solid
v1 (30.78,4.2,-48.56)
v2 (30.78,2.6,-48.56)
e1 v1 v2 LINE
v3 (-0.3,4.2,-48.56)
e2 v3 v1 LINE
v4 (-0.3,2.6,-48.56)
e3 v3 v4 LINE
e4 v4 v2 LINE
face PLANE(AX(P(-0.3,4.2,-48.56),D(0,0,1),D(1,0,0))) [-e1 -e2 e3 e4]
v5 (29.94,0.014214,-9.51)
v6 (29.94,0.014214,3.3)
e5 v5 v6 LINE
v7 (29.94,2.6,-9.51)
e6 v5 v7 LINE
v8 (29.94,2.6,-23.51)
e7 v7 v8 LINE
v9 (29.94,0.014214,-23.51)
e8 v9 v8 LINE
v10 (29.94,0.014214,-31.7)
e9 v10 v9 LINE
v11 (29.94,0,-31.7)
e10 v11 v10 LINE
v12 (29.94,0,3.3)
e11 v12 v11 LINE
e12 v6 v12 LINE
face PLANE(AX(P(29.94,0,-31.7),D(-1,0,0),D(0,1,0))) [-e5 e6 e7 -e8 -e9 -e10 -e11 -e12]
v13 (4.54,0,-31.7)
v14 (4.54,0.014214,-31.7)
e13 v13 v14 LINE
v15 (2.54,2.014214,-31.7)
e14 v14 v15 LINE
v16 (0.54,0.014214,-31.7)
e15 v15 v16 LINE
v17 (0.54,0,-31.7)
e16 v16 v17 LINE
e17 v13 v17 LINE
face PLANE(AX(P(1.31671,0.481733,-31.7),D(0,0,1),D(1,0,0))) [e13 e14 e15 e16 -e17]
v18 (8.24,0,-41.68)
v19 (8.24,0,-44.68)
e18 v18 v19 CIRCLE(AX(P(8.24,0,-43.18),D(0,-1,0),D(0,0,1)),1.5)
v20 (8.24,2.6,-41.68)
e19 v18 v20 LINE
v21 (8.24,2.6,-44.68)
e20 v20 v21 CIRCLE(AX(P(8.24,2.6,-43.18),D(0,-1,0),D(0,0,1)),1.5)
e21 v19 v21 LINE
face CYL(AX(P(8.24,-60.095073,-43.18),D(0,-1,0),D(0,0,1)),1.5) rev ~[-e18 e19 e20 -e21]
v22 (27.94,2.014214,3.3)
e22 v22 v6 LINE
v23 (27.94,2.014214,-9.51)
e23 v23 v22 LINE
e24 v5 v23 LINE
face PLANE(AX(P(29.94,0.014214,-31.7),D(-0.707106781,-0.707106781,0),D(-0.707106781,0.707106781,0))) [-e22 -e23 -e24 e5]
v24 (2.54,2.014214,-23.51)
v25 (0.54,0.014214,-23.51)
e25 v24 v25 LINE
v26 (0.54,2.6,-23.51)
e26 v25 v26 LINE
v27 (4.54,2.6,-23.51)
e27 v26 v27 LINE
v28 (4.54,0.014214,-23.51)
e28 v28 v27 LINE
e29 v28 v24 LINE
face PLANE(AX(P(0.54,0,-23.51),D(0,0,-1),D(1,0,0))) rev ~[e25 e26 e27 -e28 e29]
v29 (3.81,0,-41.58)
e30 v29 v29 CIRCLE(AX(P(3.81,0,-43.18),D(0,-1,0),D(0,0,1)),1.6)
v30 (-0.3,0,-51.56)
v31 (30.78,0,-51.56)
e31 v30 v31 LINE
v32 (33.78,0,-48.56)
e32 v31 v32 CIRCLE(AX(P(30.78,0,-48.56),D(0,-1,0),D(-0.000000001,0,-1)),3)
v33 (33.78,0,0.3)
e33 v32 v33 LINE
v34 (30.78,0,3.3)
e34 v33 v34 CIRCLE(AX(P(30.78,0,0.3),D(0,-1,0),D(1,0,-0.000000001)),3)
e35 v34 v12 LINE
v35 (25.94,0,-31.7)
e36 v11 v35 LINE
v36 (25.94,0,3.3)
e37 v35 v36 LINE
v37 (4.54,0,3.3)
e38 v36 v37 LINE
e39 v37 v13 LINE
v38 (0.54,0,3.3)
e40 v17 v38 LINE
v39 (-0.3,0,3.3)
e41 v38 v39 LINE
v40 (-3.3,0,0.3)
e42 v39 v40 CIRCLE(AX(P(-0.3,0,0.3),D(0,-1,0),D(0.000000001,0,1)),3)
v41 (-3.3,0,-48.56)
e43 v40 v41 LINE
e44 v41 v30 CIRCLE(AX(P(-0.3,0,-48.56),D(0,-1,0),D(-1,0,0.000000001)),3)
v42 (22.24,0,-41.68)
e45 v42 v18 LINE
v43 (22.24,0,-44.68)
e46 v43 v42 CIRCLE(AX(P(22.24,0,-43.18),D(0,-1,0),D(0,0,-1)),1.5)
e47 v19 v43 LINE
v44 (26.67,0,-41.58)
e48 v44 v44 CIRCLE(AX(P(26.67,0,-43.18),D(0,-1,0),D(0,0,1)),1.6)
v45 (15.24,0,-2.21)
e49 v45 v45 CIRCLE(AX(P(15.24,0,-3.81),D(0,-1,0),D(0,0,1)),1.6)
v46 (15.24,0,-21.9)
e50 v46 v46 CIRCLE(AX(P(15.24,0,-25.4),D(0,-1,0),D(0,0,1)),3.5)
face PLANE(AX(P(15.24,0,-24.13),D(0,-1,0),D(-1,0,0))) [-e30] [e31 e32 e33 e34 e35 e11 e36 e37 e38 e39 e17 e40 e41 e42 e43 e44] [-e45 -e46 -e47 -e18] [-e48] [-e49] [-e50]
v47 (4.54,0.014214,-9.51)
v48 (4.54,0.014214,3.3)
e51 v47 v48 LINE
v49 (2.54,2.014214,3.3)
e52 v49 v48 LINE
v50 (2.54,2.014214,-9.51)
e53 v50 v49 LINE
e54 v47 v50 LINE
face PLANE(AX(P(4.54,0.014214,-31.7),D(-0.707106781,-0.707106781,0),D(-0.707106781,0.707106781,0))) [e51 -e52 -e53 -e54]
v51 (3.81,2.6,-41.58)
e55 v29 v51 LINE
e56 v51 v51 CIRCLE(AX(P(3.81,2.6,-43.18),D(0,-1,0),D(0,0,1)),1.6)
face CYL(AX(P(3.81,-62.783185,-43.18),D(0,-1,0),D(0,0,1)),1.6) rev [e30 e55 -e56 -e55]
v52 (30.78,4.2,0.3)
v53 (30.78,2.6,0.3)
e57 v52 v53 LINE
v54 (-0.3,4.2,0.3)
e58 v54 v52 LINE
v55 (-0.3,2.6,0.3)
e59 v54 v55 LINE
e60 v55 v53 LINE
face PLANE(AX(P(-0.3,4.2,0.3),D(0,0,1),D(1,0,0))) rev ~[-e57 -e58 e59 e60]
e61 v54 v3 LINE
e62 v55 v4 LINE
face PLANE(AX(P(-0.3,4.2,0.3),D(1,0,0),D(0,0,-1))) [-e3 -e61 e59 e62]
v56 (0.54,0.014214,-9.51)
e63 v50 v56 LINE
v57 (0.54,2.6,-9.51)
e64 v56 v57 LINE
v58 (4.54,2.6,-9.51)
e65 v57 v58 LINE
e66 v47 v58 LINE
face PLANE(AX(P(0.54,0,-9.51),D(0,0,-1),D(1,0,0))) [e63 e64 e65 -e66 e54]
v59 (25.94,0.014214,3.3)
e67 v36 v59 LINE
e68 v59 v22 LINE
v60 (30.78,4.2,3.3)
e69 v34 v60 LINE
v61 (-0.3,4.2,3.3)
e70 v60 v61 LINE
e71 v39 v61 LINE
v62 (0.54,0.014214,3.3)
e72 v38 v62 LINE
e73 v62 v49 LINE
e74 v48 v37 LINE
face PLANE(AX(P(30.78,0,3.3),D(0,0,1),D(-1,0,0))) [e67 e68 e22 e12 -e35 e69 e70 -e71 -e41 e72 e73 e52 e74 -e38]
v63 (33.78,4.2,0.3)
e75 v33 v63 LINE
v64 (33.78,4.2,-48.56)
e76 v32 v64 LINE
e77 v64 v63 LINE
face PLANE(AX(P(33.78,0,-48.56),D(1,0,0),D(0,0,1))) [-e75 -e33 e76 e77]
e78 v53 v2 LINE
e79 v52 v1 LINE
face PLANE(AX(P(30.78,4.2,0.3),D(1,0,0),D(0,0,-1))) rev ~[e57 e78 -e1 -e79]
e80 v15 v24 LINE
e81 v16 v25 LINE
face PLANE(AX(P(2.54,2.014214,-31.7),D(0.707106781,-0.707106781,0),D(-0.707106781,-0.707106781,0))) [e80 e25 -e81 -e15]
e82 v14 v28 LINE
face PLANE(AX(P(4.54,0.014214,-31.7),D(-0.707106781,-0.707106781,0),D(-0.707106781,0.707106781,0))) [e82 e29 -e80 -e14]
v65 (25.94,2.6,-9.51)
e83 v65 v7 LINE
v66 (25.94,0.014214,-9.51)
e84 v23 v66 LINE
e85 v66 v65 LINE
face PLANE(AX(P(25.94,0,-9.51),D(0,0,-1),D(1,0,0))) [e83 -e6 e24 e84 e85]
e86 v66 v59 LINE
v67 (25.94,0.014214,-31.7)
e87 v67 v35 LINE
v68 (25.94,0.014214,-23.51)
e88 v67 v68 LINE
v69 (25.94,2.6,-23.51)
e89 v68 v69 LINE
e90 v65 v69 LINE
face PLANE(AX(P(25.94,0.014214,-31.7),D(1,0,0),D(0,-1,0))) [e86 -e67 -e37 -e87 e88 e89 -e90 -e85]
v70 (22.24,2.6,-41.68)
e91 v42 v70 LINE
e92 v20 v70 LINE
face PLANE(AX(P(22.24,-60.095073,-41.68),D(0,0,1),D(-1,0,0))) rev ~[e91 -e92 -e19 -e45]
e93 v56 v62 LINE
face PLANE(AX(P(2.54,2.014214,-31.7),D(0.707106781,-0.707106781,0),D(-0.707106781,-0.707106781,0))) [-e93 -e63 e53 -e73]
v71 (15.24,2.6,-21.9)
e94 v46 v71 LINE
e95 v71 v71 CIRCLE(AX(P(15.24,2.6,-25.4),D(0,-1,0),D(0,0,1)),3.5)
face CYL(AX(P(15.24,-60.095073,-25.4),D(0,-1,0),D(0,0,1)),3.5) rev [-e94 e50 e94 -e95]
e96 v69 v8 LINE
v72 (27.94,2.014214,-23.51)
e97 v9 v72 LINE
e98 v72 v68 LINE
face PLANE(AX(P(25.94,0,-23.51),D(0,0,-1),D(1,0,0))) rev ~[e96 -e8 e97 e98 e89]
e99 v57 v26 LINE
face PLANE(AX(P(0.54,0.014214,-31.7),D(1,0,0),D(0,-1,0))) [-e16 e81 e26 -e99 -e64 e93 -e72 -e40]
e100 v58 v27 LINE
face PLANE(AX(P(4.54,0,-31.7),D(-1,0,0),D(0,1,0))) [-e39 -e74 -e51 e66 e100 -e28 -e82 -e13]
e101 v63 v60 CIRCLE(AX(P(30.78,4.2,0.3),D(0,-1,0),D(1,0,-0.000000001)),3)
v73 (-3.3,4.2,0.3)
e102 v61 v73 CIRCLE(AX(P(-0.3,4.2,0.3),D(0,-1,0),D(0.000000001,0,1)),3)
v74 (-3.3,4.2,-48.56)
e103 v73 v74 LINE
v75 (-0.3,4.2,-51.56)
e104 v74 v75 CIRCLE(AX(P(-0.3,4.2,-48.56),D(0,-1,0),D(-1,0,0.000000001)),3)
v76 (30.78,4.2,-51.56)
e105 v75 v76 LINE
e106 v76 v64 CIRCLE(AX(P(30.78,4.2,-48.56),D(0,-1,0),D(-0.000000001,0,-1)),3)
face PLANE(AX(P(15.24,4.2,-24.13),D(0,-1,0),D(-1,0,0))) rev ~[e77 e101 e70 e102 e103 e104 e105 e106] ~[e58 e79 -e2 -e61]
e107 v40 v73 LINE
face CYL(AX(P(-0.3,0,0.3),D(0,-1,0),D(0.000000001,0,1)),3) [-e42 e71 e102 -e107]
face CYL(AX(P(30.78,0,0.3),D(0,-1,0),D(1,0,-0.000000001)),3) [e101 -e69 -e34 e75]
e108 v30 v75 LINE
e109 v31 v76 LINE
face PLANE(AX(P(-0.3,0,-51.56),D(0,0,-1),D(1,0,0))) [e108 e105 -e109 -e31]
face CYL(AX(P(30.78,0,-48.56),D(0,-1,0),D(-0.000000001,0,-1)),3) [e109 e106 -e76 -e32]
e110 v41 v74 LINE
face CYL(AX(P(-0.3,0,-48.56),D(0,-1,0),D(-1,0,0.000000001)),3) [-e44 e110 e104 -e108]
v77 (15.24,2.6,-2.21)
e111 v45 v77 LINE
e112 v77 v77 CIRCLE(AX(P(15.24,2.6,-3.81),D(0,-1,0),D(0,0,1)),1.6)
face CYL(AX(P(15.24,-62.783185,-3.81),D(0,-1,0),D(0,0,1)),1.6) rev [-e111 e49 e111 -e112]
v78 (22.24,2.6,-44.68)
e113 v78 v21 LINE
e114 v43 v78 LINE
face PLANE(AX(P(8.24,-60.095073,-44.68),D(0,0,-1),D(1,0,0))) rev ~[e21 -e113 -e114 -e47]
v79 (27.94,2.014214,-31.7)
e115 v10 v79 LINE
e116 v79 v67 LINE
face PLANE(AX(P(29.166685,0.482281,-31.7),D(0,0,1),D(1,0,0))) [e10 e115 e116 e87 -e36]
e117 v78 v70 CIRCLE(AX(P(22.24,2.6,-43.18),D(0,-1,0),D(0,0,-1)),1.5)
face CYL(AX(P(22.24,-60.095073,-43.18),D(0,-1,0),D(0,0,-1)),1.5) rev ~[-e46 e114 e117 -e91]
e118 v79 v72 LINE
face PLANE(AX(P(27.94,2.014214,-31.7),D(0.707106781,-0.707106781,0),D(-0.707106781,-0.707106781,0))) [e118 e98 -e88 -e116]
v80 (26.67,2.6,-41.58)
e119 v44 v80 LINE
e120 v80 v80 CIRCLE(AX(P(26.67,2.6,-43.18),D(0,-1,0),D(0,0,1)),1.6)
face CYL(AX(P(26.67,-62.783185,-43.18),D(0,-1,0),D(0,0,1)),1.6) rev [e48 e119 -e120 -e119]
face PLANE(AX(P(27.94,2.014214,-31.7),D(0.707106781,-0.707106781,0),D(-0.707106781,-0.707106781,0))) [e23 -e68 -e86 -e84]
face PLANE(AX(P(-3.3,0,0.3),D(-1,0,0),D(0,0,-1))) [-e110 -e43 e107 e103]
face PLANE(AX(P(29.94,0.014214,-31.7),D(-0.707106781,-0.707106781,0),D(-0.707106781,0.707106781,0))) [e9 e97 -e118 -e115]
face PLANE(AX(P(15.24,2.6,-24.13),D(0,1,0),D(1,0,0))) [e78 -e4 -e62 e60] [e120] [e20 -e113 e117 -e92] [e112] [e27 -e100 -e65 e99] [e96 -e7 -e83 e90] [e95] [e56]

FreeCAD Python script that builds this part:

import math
import FreeCAD as App
import Part
import Sketcher
Q = App.Units.Quantity


def add_polygon(sketch, points):
    """Adds a closed chain of lines whose ends are joined by coincident constraints."""
    first, n = sketch.GeometryCount, len(points)
    for a, b in zip(points, points[1:] + points[:1]):
        sketch.addGeometry(Part.LineSegment(App.Vector(*a, 0), App.Vector(*b, 0)), False)
    for i in range(n):
        sketch.addConstraint(Sketcher.Constraint("Coincident", first + i, 2, first + (i + 1) % n, 1))

doc = App.newDocument("Part")
body = doc.addObject("PartDesign::Body", "Body")

# Sketch on XZ plane
sketch1 = doc.addObject("Sketcher::SketchObject", "Sketch")
body.addObject(sketch1)
sketch1.AttachmentSupport = (doc.XZ_Plane, [""])
sketch1.MapMode = "FlatFace"
sketch1.addGeometry([
    Part.LineSegment(App.Vector(-3.3, -48.6, 0), App.Vector(-3.3, 0.3, 0)),  # 0
    Part.ArcOfCircle(Part.Circle(App.Vector(-0.3, 0.3, 0), App.Vector(0, 0, 1), 3), math.radians(90), math.radians(180)),  # 1
    Part.LineSegment(App.Vector(-0.3, 3.3, 0), App.Vector(30.8, 3.3, 0)),  # 2
    Part.ArcOfCircle(Part.Circle(App.Vector(30.8, 0.3, 0), App.Vector(0, 0, 1), 3), math.radians(0), math.radians(90)),  # 3
    Part.LineSegment(App.Vector(33.8, 0.3, 0), App.Vector(33.8, -48.6, 0)),  # 4
    Part.ArcOfCircle(Part.Circle(App.Vector(30.8, -48.6, 0), App.Vector(0, 0, 1), 3), math.radians(-90), math.radians(0)),  # 5
    Part.LineSegment(App.Vector(30.8, -51.6, 0), App.Vector(-0.3, -51.6, 0)),  # 6
    Part.ArcOfCircle(Part.Circle(App.Vector(-0.3, -48.6, 0), App.Vector(0, 0, 1), 3), math.radians(180), math.radians(270)),  # 7
], False)
sketch1.addConstraint([
    Sketcher.Constraint("Tangent", 0, 2, 1, 2),
    Sketcher.Constraint("Tangent", 1, 1, 2, 1),
    Sketcher.Constraint("Tangent", 2, 2, 3, 2),
    Sketcher.Constraint("Tangent", 3, 1, 4, 1),
    Sketcher.Constraint("Tangent", 4, 2, 5, 2),
    Sketcher.Constraint("Tangent", 5, 1, 6, 1),
    Sketcher.Constraint("Tangent", 6, 2, 7, 2),
    Sketcher.Constraint("Tangent", 7, 1, 0, 1),
    Sketcher.Constraint("Vertical", 0),
    Sketcher.Constraint("Horizontal", 2),
    Sketcher.Constraint("Vertical", 4),
    Sketcher.Constraint("Horizontal", 6),
    Sketcher.Constraint("Equal", 1, 3),
    Sketcher.Constraint("Equal", 3, 5),
    Sketcher.Constraint("Equal", 5, 7),
    Sketcher.Constraint("Radius", 1, Q("3 mm")),
    Sketcher.Constraint("DistanceX", 2, 1, 2, 2, Q("31.08 mm")),
    Sketcher.Constraint("DistanceY", 0, 1, 0, 2, Q("48.86 mm")),
    Sketcher.Constraint("DistanceX", 1, 3, -1, 1, Q("0.3 mm")),
    Sketcher.Constraint("DistanceY", -1, 1, 1, 3, Q("0.3 mm")),
])
pad1 = doc.addObject("PartDesign::Pad", "Pad")
body.addObject(pad1)
pad1.Profile = sketch1
pad1.Length = 4.2
pad1.Reversed = True

# Sketch on XZ plane
sketch2 = doc.addObject("Sketcher::SketchObject", "Sketch001")
body.addObject(sketch2)
sketch2.AttachmentSupport = (doc.XZ_Plane, [""])
sketch2.MapMode = "FlatFace"
sketch2.addGeometry([
    Part.Circle(App.Vector(3.8, -43.2, 0), App.Vector(0, 0, 1), 1.6),
    Part.Circle(App.Vector(26.7, -43.2, 0), App.Vector(0, 0, 1), 1.6),
    Part.Circle(App.Vector(15.2, -3.8, 0), App.Vector(0, 0, 1), 1.6),
], False)
sketch2.addConstraint([
    Sketcher.Constraint("Equal", 0, 1),
    Sketcher.Constraint("Equal", 1, 2),
    Sketcher.Constraint("Horizontal", 0, 3, 1, 3),
    Sketcher.Constraint("Diameter", 0, Q("3.2 mm")),
    Sketcher.Constraint("DistanceX", -1, 1, 0, 3, Q("3.81 mm")),
    Sketcher.Constraint("DistanceY", 0, 3, -1, 1, Q("43.18 mm")),
    Sketcher.Constraint("DistanceX", -1, 1, 1, 3, Q("26.67 mm")),
    Sketcher.Constraint("DistanceX", -1, 1, 2, 3, Q("15.24 mm")),
    Sketcher.Constraint("DistanceY", 2, 3, -1, 1, Q("3.81 mm")),
])
pocket1 = doc.addObject("PartDesign::Pocket", "Pocket")
body.addObject(pocket1)
pocket1.Profile = sketch2
pocket1.Type = "ThroughAll"
pocket1.Midplane = True

# Sketch on XZ plane
sketch3 = doc.addObject("Sketcher::SketchObject", "Sketch002")
body.addObject(sketch3)
sketch3.AttachmentSupport = (doc.XZ_Plane, [""])
sketch3.MapMode = "FlatFace"
add_polygon(sketch3, [(0.5, -23.5), (0.5, -9.5), (4.5, -9.5), (4.5, -23.5)])  # lines 0-3
add_polygon(sketch3, [(25.9, -23.5), (25.9, -9.5), (29.9, -9.5), (29.9, -23.5)])  # lines 4-7
sketch3.addConstraint([
    Sketcher.Constraint("Vertical", 0),
    Sketcher.Constraint("Horizontal", 1),
    Sketcher.Constraint("Vertical", 2),
    Sketcher.Constraint("Horizontal", 3),
    Sketcher.Constraint("Vertical", 4),
    Sketcher.Constraint("Horizontal", 5),
    Sketcher.Constraint("Vertical", 6),
    Sketcher.Constraint("Horizontal", 7),
    Sketcher.Constraint("Horizontal", 1, 2, 4, 2),
    Sketcher.Constraint("Horizontal", 3, 2, 6, 2),
    Sketcher.Constraint("Equal", 3, 5),
    Sketcher.Constraint("DistanceX", 1, 1, 1, 2, Q("4 mm")),
    Sketcher.Constraint("DistanceY", 0, 1, 0, 2, Q("14 mm")),
    Sketcher.Constraint("DistanceX", 1, 2, 4, 2, Q("21.4 mm")),
    Sketcher.Constraint("DistanceX", -1, 1, 0, 2, Q("0.54 mm")),
    Sketcher.Constraint("DistanceY", 0, 2, -1, 1, Q("9.51 mm")),
])
pocket2 = doc.addObject("PartDesign::Pocket", "Pocket001")
body.addObject(pocket2)
pocket2.Profile = sketch3
pocket2.Type = "ThroughAll"

# Sketch on XZ plane
sketch4 = doc.addObject("Sketcher::SketchObject", "Sketch003")
body.addObject(sketch4)
sketch4.AttachmentSupport = (doc.XZ_Plane, [""])
sketch4.MapMode = "FlatFace"
sketch4.AttachmentOffset = App.Placement(App.Vector(0, 0, -4.2), App.Rotation())
add_polygon(sketch4, [(0, -49), (0, 0), (31, 0), (31, -49)])  # lines 0-3
sketch4.addConstraint([
    Sketcher.Constraint("Vertical", 0),
    Sketcher.Constraint("Horizontal", 1),
    Sketcher.Constraint("Vertical", 2),
    Sketcher.Constraint("Horizontal", 3),
    Sketcher.Constraint("DistanceX", 1, 1, 1, 2, Q("31.08 mm")),
    Sketcher.Constraint("DistanceY", 0, 1, 0, 2, Q("48.86 mm")),
    Sketcher.Constraint("DistanceX", 0, 2, -1, 1, Q("0.3 mm")),
    Sketcher.Constraint("DistanceY", -1, 1, 0, 2, Q("0.3 mm")),
])
pocket3 = doc.addObject("PartDesign::Pocket", "Pocket002")
body.addObject(pocket3)
pocket3.Profile = sketch4
pocket3.Length = 1.6
pocket3.Reversed = True

# Sketch on XY plane
sketch5 = doc.addObject("Sketcher::SketchObject", "Sketch004")
body.addObject(sketch5)
sketch5.AttachmentSupport = (doc.XY_Plane, [""])
sketch5.MapMode = "FlatFace"
sketch5.AttachmentOffset = App.Placement(App.Vector(0, 0, 3.3), App.Rotation())
sketch5.addGeometry([
    Part.LineSegment(App.Vector(0.54, 0.014, 0), App.Vector(0.54, 0, 0)),  # 0
    Part.LineSegment(App.Vector(0.54, 0, 0), App.Vector(1.74, 0, 0)),  # 1
    Part.ArcOfCircle(Part.Circle(App.Vector(2.54, 0.6, 0), App.Vector(0, 0, 1), 1), math.radians(-143), math.radians(-37)),  # 2
    Part.LineSegment(App.Vector(3.34, 0, 0), App.Vector(4.54, 0, 0)),  # 3
    Part.LineSegment(App.Vector(4.54, 0, 0), App.Vector(4.54, 0.014, 0)),  # 4
    Part.LineSegment(App.Vector(4.54, 0.014, 0), App.Vector(2.54, 2.014, 0)),  # 5
    Part.LineSegment(App.Vector(2.54, 2.014, 0), App.Vector(0.54, 0.014, 0)),  # 6
    Part.LineSegment(App.Vector(29.94, 0.014, 0), App.Vector(27.94, 2.014, 0)),  # 7
    Part.LineSegment(App.Vector(27.94, 2.014, 0), App.Vector(25.94, 0.014, 0)),  # 8
    Part.LineSegment(App.Vector(25.94, 0.014, 0), App.Vector(25.94, 0, 0)),  # 9
    Part.LineSegment(App.Vector(25.94, 0, 0), App.Vector(27.14, 0, 0)),  # 10
    Part.ArcOfCircle(Part.Circle(App.Vector(27.94, 0.6, 0), App.Vector(0, 0, 1), 1), math.radians(-143), math.radians(-37)),  # 11
    Part.LineSegment(App.Vector(28.74, 0, 0), App.Vector(29.94, 0, 0)),  # 12
    Part.LineSegment(App.Vector(29.94, 0, 0), App.Vector(29.94, 0.014, 0)),  # 13
], False)
sketch5.addConstraint([
    Sketcher.Constraint("Coincident", 0, 2, 1, 1),
    Sketcher.Constraint("Coincident", 1, 2, 2, 1),
    Sketcher.Constraint("Coincident", 2, 2, 3, 1),
    Sketcher.Constraint("Coincident", 3, 2, 4, 1),
    Sketcher.Constraint("Coincident", 4, 2, 5, 1),
    Sketcher.Constraint("Coincident", 5, 2, 6, 1),
    Sketcher.Constraint("Coincident", 6, 2, 0, 1),
    Sketcher.Constraint("Coincident", 7, 2, 8, 1),
    Sketcher.Constraint("Coincident", 8, 2, 9, 1),
    Sketcher.Constraint("Coincident", 9, 2, 10, 1),
    Sketcher.Constraint("Coincident", 10, 2, 11, 1),
    Sketcher.Constraint("Coincident", 11, 2, 12, 1),
    Sketcher.Constraint("Coincident", 12, 2, 13, 1),
    Sketcher.Constraint("Coincident", 13, 2, 7, 1),
    Sketcher.Constraint("Vertical", 0),
    Sketcher.Constraint("Horizontal", 1),
    Sketcher.Constraint("Horizontal", 3),
    Sketcher.Constraint("Vertical", 4),
    Sketcher.Constraint("Vertical", 9),
    Sketcher.Constraint("Horizontal", 10),
    Sketcher.Constraint("Horizontal", 12),
    Sketcher.Constraint("Vertical", 13),
    Sketcher.Constraint("Equal", 2, 11),
    Sketcher.Constraint("PointOnObject", 0, 2, -1),
    Sketcher.Constraint("PointOnObject", 2, 2, -1),
    Sketcher.Constraint("PointOnObject", 9, 2, -1),
    Sketcher.Constraint("PointOnObject", 11, 2, -1),
    Sketcher.Constraint("Perpendicular", 5, 6),
    Sketcher.Constraint("Perpendicular", 6, 7),
    Sketcher.Constraint("Perpendicular", 7, 8),
    Sketcher.Constraint("Horizontal", 2, 3, 11, 3),
    Sketcher.Constraint("Horizontal", 4, 2, 6, 2),
    Sketcher.Constraint("Horizontal", 5, 2, 7, 2),
    Sketcher.Constraint("Horizontal", 6, 2, 8, 2),
    Sketcher.Constraint("Horizontal", 8, 2, 13, 2),
    Sketcher.Constraint("Vertical", 2, 3, 5, 2),
    Sketcher.Constraint("Vertical", 11, 3, 7, 2),
    Sketcher.Constraint("Equal", 1, 3),
    Sketcher.Constraint("Radius", 2, Q("1 mm")),
    Sketcher.Constraint("DistanceX", 1, 1, 1, 2, Q("1.2 mm")),
    Sketcher.Constraint("DistanceX", 0, 2, 2, 3, Q("2 mm")),
    Sketcher.Constraint("DistanceX", 2, 3, 11, 3, Q("25.4 mm")),
    Sketcher.Constraint("DistanceX", -1, 1, 2, 3, Q("2.54 mm")),
    Sketcher.Constraint("DistanceY", 0, 2, 0, 1, Q("0.014214 mm")),
])
pocket4 = doc.addObject("PartDesign::Pocket", "Pocket003")
body.addObject(pocket4)
pocket4.Profile = sketch5
pocket4.Type = "TwoLengths"
pocket4.Length = 65.562745
pocket4.Length2 = 35
pocket4.Reversed = True

# Sketch on XZ plane
sketch6 = doc.addObject("Sketcher::SketchObject", "Sketch005")
body.addObject(sketch6)
sketch6.AttachmentSupport = (doc.XZ_Plane, [""])
sketch6.MapMode = "FlatFace"
sketch6.AttachmentOffset = App.Placement(App.Vector(0, 0, -2.6), App.Rotation())
sketch6.addGeometry([
    Part.Circle(App.Vector(15.2, -25.4, 0), App.Vector(0, 0, 1), 3.5),  # 0
    Part.LineSegment(App.Vector(22.2, -44.7, 0), App.Vector(8.2, -44.7, 0)),  # 1
    Part.ArcOfCircle(Part.Circle(App.Vector(8.2, -43.2, 0), App.Vector(0, 0, 1), 1.5), math.radians(90), math.radians(270)),  # 2
    Part.LineSegment(App.Vector(8.2, -41.7, 0), App.Vector(22.2, -41.7, 0)),  # 3
    Part.ArcOfCircle(Part.Circle(App.Vector(22.2, -43.2, 0), App.Vector(0, 0, 1), 1.5), math.radians(-90), math.radians(90)),  # 4
], False)
sketch6.addConstraint([
    Sketcher.Constraint("Tangent", 1, 2, 2, 2),
    Sketcher.Constraint("Tangent", 2, 1, 3, 1),
    Sketcher.Constraint("Tangent", 3, 2, 4, 2),
    Sketcher.Constraint("Tangent", 4, 1, 1, 1),
    Sketcher.Constraint("Horizontal", 1),
    Sketcher.Constraint("Horizontal", 3),
    Sketcher.Constraint("Diameter", 0, Q("7 mm")),
    Sketcher.Constraint("Radius", 2, Q("1.5 mm")),
    Sketcher.Constraint("DistanceX", 1, 2, 1, 1, Q("14 mm")),
    Sketcher.Constraint("DistanceX", 2, 3, 0, 3, Q("7 mm")),
    Sketcher.Constraint("DistanceY", 0, 3, -1, 1, Q("25.4 mm")),
    Sketcher.Constraint("DistanceX", -1, 1, 0, 3, Q("15.24 mm")),
    Sketcher.Constraint("DistanceY", 2, 3, -1, 1, Q("43.18 mm")),
])
pocket5 = doc.addObject("PartDesign::Pocket", "Pocket004")
body.addObject(pocket5)
pocket5.Profile = sketch6
pocket5.Type = "ThroughAll"
pocket5.Midplane = True

doc.recompute()
